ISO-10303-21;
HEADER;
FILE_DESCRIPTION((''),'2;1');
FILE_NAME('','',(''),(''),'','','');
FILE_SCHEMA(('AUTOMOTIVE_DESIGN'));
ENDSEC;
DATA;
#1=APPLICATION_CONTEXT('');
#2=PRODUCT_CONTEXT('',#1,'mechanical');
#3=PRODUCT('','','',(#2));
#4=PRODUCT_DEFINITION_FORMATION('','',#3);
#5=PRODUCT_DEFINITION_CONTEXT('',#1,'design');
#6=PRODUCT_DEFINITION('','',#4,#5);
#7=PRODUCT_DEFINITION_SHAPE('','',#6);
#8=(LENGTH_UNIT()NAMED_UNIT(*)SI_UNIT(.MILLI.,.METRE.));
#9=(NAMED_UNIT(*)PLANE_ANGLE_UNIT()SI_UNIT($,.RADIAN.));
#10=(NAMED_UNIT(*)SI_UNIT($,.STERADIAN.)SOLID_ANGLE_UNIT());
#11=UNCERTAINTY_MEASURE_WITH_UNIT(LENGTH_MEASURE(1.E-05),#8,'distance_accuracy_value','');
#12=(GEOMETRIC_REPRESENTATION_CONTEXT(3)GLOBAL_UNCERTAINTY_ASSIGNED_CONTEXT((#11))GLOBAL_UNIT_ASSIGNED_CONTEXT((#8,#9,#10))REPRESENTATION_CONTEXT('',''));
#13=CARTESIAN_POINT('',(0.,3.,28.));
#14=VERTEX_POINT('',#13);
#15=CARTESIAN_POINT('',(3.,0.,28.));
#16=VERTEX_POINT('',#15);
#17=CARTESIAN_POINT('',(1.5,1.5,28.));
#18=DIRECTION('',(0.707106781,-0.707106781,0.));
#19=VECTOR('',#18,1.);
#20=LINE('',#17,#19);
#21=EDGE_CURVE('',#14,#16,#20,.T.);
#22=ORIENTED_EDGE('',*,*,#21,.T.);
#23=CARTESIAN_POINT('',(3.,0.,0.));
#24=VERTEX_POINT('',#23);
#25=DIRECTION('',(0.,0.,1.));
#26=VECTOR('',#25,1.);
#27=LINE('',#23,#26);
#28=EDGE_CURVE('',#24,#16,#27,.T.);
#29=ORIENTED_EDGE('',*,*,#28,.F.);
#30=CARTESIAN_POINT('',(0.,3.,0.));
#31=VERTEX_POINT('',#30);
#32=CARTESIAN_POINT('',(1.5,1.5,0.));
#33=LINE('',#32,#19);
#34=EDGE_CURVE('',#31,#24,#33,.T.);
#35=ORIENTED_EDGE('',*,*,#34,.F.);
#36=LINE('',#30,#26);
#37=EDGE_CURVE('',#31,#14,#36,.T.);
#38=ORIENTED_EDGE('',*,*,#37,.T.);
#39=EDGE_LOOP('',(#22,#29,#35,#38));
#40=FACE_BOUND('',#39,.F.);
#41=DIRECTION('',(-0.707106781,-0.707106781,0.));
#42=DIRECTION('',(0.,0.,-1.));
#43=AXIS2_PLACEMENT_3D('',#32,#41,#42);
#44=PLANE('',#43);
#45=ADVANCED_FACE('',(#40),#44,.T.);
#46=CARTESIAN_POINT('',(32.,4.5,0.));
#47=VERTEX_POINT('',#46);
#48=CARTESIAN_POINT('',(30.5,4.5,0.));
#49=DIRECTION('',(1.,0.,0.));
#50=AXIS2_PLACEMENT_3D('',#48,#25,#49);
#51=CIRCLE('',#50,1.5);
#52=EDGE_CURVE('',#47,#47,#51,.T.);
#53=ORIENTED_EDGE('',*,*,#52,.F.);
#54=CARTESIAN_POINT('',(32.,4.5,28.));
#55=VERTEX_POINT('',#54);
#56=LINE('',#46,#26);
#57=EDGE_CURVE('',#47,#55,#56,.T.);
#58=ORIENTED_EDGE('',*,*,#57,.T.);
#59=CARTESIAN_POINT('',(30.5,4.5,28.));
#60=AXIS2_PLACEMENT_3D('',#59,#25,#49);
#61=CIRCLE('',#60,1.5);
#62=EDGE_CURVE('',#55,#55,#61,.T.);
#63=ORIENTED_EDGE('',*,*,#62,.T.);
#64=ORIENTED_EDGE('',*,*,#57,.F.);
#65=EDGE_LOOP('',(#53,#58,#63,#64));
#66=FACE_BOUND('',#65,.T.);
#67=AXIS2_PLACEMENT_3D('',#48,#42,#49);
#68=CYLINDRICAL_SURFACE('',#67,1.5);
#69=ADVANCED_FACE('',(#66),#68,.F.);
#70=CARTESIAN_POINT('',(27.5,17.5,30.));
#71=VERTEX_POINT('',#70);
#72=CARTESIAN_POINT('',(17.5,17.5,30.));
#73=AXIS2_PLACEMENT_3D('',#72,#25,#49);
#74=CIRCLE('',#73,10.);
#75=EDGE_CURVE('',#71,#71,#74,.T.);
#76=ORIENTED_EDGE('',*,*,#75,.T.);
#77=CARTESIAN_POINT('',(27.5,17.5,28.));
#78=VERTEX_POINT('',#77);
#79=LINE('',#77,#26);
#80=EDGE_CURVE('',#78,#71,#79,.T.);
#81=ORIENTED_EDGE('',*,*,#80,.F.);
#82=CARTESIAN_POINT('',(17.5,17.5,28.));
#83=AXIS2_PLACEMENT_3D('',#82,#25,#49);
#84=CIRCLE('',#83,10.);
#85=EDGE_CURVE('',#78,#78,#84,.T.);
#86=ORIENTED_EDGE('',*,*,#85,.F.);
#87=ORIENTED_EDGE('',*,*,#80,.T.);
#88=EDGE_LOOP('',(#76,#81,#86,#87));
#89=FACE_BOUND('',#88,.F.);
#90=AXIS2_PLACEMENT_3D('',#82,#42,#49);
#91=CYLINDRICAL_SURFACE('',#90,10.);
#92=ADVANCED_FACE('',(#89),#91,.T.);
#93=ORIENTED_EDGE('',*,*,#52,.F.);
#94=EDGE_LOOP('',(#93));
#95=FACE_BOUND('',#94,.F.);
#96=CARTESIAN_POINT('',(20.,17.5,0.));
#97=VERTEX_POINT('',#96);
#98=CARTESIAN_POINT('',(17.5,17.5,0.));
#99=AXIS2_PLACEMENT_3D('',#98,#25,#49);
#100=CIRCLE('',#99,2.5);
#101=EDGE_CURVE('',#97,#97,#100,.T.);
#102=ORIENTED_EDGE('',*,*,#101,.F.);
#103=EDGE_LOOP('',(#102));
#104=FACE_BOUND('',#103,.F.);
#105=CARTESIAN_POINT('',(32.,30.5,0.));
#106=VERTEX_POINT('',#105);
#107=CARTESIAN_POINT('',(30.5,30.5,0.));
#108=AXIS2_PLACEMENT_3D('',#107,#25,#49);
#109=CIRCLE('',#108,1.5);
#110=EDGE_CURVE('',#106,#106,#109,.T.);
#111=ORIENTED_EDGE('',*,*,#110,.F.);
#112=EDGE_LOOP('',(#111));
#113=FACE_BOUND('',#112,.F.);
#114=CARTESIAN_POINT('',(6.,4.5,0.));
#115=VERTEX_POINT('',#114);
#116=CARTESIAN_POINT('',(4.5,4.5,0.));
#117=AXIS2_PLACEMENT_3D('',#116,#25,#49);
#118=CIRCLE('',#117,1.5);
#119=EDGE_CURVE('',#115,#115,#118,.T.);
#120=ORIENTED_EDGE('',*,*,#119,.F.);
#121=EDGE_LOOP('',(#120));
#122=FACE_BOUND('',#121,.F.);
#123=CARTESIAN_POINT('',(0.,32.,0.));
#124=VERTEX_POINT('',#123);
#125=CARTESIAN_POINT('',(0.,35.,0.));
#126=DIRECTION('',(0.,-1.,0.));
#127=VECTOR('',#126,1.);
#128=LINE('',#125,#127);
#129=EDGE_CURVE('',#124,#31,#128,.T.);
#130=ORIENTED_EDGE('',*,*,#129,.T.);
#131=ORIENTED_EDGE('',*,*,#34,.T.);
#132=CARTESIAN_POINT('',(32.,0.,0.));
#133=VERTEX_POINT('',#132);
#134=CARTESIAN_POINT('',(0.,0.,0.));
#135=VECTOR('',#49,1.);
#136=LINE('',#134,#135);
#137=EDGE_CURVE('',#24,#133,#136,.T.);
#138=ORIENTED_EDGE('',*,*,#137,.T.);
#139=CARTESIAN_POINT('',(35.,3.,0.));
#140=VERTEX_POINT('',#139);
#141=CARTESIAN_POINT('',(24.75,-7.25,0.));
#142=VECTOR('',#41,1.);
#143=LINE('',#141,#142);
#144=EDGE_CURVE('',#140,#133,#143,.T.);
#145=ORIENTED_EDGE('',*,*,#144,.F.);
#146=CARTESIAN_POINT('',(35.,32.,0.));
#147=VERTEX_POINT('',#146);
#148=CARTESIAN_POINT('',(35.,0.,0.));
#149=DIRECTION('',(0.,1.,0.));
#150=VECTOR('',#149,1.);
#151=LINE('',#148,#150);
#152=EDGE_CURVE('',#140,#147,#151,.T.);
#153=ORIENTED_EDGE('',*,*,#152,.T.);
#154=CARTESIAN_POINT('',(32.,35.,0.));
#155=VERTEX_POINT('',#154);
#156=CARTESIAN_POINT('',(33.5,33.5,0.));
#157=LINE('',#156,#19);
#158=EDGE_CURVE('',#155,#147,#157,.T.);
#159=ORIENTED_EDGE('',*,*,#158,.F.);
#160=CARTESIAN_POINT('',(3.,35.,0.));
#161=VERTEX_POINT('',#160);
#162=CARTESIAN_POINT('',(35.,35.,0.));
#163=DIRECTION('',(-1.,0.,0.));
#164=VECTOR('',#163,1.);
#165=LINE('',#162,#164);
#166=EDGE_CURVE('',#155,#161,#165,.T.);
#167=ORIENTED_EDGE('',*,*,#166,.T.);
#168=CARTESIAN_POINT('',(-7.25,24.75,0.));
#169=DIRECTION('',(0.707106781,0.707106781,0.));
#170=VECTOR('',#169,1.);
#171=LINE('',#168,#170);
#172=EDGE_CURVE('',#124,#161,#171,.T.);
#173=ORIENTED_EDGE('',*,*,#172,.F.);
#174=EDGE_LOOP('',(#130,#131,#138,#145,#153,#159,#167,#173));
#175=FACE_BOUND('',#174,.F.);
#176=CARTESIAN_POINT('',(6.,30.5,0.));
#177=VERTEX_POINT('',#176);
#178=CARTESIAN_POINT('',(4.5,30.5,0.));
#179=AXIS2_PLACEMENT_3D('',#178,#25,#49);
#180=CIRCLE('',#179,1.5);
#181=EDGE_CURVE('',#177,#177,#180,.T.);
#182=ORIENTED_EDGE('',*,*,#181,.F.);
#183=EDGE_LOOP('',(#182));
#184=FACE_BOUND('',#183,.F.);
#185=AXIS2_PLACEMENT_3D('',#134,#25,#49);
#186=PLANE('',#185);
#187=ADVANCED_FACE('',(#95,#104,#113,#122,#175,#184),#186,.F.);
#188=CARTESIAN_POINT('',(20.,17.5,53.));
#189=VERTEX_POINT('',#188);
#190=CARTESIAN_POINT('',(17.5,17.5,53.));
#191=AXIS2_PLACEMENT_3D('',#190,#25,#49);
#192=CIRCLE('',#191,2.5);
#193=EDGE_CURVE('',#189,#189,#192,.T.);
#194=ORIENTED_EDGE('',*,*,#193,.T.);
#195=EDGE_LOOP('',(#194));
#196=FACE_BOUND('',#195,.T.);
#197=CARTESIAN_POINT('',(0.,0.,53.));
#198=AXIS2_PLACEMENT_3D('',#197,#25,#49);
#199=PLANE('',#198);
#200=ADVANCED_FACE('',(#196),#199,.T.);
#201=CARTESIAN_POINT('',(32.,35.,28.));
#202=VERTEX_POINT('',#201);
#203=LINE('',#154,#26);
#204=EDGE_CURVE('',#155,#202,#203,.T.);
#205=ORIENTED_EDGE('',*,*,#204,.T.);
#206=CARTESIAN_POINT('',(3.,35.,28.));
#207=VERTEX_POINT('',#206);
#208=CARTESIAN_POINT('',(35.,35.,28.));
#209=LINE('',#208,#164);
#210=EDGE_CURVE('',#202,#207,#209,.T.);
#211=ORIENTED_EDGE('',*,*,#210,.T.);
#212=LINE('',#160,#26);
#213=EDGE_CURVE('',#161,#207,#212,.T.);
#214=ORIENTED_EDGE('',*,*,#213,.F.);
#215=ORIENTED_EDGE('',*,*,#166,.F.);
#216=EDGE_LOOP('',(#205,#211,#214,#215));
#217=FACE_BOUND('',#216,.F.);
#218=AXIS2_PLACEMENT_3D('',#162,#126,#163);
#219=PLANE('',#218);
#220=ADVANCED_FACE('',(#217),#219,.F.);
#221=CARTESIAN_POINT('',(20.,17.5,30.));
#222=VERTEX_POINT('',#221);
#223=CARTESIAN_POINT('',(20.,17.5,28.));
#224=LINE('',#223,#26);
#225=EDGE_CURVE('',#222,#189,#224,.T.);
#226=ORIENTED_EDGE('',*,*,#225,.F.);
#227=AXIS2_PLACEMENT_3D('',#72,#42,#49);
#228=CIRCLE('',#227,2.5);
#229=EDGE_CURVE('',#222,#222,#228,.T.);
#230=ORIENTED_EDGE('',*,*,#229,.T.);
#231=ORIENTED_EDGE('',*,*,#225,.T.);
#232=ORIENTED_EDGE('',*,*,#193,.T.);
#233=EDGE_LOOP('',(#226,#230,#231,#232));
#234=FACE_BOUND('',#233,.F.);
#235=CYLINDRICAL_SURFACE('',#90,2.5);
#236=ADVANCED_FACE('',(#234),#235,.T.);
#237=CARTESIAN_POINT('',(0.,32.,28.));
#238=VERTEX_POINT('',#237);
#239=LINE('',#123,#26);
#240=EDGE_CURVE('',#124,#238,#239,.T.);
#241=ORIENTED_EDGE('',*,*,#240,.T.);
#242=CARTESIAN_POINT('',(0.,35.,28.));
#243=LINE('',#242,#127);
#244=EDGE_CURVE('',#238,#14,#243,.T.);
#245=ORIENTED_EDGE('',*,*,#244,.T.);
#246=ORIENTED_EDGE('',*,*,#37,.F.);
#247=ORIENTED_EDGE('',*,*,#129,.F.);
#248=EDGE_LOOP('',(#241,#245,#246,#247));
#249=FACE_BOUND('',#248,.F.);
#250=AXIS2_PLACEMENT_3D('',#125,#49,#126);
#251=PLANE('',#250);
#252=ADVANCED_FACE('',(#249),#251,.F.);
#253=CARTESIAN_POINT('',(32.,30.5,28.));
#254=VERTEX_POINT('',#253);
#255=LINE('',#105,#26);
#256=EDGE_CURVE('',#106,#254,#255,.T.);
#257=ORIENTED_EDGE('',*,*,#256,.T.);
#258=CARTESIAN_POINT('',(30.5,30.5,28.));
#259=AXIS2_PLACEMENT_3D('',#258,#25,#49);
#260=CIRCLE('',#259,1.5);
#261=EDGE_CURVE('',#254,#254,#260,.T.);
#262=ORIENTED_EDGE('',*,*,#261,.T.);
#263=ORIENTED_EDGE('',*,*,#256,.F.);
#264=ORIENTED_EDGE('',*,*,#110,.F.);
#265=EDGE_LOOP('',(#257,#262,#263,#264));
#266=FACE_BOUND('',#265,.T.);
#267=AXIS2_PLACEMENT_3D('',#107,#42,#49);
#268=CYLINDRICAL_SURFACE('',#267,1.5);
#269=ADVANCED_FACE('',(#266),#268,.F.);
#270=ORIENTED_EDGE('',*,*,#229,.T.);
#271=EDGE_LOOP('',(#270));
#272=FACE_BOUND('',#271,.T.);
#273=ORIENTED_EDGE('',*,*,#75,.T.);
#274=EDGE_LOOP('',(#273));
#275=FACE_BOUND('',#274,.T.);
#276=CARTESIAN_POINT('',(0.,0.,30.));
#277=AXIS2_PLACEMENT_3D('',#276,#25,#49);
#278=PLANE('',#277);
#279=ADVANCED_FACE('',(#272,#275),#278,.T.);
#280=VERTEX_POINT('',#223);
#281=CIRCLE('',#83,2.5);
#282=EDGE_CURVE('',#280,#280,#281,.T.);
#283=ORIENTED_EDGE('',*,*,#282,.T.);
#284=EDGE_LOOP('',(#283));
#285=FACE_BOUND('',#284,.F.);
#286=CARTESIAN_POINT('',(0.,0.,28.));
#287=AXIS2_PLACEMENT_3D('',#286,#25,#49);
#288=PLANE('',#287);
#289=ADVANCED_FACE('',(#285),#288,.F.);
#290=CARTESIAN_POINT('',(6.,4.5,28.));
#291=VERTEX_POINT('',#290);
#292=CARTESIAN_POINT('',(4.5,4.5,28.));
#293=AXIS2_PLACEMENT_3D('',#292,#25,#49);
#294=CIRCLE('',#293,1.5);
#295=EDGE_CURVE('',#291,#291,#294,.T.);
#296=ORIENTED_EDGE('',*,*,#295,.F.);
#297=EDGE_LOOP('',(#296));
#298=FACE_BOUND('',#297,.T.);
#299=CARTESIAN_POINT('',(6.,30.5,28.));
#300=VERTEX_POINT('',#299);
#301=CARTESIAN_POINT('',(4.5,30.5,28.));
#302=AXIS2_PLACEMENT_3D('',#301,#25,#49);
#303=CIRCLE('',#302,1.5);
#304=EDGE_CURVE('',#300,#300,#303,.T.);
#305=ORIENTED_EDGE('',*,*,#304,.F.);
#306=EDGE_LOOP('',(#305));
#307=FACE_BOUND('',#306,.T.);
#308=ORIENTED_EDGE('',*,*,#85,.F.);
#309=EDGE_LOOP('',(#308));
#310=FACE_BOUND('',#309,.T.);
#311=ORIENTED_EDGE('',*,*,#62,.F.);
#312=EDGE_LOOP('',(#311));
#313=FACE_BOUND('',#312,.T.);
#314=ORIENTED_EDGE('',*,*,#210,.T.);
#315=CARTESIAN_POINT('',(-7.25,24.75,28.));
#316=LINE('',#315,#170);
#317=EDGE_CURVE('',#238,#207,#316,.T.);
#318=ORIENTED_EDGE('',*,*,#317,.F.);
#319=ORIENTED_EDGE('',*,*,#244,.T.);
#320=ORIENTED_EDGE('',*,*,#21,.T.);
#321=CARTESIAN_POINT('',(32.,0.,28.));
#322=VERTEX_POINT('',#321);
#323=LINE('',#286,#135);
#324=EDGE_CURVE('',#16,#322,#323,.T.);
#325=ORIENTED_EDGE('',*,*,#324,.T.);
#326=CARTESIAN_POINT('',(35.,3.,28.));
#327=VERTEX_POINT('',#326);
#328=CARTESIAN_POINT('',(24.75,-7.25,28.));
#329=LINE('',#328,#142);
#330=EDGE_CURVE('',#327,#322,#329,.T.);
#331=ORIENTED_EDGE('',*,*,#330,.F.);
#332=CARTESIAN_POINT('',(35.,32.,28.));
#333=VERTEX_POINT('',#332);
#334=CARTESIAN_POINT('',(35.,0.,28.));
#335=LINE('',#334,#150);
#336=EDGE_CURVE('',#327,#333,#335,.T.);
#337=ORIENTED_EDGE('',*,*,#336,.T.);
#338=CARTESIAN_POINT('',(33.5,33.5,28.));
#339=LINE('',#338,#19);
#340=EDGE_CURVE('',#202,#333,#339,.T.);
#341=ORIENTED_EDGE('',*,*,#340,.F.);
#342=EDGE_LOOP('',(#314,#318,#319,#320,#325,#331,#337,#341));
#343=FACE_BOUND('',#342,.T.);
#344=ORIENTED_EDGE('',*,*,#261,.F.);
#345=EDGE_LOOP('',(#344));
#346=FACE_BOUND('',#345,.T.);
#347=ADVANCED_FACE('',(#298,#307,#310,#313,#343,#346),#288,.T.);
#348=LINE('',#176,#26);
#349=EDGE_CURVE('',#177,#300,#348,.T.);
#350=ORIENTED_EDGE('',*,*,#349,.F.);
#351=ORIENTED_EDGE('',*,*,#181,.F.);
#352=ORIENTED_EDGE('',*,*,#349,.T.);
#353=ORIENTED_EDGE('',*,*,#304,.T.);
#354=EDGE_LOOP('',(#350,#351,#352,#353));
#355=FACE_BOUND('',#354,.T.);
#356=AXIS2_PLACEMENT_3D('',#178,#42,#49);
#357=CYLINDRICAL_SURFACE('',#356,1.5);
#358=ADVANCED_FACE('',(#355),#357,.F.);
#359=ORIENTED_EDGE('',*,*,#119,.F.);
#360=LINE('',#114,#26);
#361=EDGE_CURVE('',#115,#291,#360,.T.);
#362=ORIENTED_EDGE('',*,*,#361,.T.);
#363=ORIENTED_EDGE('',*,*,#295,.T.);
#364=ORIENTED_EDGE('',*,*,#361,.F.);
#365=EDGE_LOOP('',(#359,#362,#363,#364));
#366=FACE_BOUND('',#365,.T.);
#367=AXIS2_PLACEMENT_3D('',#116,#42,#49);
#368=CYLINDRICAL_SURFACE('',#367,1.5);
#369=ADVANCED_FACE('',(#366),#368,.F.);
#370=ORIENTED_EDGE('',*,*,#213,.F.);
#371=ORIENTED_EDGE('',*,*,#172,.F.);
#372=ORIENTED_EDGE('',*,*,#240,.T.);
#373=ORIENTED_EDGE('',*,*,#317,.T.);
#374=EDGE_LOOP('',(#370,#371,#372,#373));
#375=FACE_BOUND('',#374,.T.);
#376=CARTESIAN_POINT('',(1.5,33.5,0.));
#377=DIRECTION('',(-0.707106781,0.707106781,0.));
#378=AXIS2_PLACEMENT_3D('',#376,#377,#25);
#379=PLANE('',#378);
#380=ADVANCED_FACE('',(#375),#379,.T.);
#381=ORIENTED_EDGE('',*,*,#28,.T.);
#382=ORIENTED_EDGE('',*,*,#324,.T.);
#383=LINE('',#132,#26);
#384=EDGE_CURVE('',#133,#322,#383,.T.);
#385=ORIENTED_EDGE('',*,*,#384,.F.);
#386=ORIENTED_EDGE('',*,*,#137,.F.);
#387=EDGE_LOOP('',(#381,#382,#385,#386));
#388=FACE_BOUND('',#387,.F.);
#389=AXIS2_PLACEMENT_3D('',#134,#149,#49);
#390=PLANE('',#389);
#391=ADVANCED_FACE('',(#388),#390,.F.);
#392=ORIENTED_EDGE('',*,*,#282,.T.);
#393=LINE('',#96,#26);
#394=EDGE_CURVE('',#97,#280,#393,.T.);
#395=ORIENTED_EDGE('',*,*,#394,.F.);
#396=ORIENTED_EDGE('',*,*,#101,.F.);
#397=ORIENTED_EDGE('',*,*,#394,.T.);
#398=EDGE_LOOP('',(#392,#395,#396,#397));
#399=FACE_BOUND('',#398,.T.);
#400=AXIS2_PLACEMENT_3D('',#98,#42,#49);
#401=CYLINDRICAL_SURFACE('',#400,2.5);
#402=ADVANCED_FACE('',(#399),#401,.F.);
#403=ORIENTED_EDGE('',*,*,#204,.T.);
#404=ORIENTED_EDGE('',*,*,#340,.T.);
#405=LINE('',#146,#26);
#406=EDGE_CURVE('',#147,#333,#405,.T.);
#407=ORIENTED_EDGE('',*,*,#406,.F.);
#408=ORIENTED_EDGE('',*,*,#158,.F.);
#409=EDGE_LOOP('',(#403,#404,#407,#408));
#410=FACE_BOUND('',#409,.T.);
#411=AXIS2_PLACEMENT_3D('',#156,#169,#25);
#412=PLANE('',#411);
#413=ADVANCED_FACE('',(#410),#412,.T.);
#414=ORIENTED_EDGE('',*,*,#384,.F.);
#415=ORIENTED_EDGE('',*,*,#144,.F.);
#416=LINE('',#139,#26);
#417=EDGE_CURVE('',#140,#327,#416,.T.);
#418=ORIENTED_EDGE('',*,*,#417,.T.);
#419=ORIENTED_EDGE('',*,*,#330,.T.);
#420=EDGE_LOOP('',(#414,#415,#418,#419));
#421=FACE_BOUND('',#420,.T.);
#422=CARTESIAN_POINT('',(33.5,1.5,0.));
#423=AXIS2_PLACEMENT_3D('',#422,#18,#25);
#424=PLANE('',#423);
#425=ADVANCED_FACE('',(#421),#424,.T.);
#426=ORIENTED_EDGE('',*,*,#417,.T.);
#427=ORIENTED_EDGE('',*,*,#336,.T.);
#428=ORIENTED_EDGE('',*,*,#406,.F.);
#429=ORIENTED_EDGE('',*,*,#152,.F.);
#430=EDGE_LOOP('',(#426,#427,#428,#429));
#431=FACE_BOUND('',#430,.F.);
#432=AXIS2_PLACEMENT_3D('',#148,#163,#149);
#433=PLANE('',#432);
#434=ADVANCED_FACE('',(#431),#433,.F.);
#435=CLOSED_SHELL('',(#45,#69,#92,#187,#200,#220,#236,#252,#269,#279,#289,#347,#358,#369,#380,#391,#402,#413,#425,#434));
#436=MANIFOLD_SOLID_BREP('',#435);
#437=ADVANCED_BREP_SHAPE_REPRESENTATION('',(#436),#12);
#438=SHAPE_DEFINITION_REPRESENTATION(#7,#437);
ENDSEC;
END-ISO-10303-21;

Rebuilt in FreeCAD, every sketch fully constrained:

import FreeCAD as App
import Part
import Sketcher
Q = App.Units.Quantity


def edges_at(feature, points):
    """Names of the edges that pass closest to the given points."""
    edges = feature.Shape.Edges
    near = lambda p: min(range(len(edges)), key=lambda i: edges[i].distToShape(Part.Vertex(*p))[0])
    return sorted({f"Edge{near(p) + 1}" for p in points})


def add_polygon(sketch, points):
    """Adds a closed chain of lines whose ends are joined by coincident constraints."""
    first, n = sketch.GeometryCount, len(points)
    for a, b in zip(points, points[1:] + points[:1]):
        sketch.addGeometry(Part.LineSegment(App.Vector(*a, 0), App.Vector(*b, 0)), False)
    for i in range(n):
        sketch.addConstraint(Sketcher.Constraint("Coincident", first + i, 2, first + (i + 1) % n, 1))

doc = App.newDocument("Part")
params = doc.addObject("Spreadsheet::Sheet", "Params")
for row, (alias, value) in enumerate([
    ("sketch1_diameter", "3 mm"),
    ("sketch1_diameter2", "5 mm"),
    ("sketch1_width", "35 mm"),
    ("pad1_length", "28 mm"),
    ("chamfer_size", "3 mm"),
    ("sketch2_diameter", "5 mm"),
    ("pad2_length", "25 mm"),
    ("sketch3_diameter", "20 mm"),
    ("pad3_length", "2 mm"),
], start=1):
    params.set(f"A{row}", alias)
    params.set(f"B{row}", "=" + value)
    params.setAlias(f"B{row}", alias)

body = doc.addObject("PartDesign::Body", "Body")
body.AllowCompound = True

# Sketch on XY plane
sketch1 = body.newObject("Sketcher::SketchObject", "Sketch")
sketch1.AttachmentSupport = (doc.getObject("XY_Plane"), [""])
sketch1.MapMode = "FlatFace"
add_polygon(sketch1, [(0, 35), (0, 0), (35, 0), (35, 35)])  # lines 0-3
sketch1.addGeometry(Part.Circle(App.Vector(4.5, 4.5, 0), App.Vector(0, 0, 1), 1.5), False)  # 4
sketch1.addGeometry(Part.Circle(App.Vector(30.5, 4.5, 0), App.Vector(0, 0, 1), 1.5), False)  # 5
sketch1.addGeometry(Part.Circle(App.Vector(4.5, 30.5, 0), App.Vector(0, 0, 1), 1.5), False)  # 6
sketch1.addGeometry(Part.Circle(App.Vector(17.5, 17.5, 0), App.Vector(0, 0, 1), 2.5), False)  # 7
sketch1.addGeometry(Part.Circle(App.Vector(30.5, 30.5, 0), App.Vector(0, 0, 1), 1.5), False)  # 8
sketch1.addConstraint([
    Sketcher.Constraint("Vertical", 0),
    Sketcher.Constraint("Horizontal", 1),
    Sketcher.Constraint("Vertical", 2),
    Sketcher.Constraint("Horizontal", 3),
    Sketcher.Constraint("Coincident", 0, 2, -1, 1),
    Sketcher.Constraint("Equal", 4, 5),
    Sketcher.Constraint("Equal", 5, 6),
    Sketcher.Constraint("Equal", 6, 8),
    Sketcher.Constraint("Horizontal", 4, 3, 5, 3),
    Sketcher.Constraint("Horizontal", 6, 3, 8, 3),
    Sketcher.Constraint("Vertical", 4, 3, 6, 3),
    Sketcher.Constraint("Vertical", 5, 3, 8, 3),
    Sketcher.Constraint("Equal", 3, 0),
    Sketcher.Constraint("Diameter", 4, Q("3 mm")),
    Sketcher.Constraint("Diameter", 7, Q("5 mm")),
    Sketcher.Constraint("DistanceX", 1, 1, 1, 2, Q("35 mm")),
    Sketcher.Constraint("DistanceX", 4, 3, 5, 3, Q("26 mm")),
    Sketcher.Constraint("DistanceY", 4, 3, 6, 3, Q("26 mm")),
    Sketcher.Constraint("DistanceX", 4, 3, 7, 3, Q("13 mm")),
    Sketcher.Constraint("DistanceY", 4, 3, 7, 3, Q("13 mm")),
    Sketcher.Constraint("DistanceX", -1, 1, 4, 3, Q("4.5 mm")),
    Sketcher.Constraint("DistanceY", -1, 1, 4, 3, Q("4.5 mm")),
])
sketch1.setExpression("Constraints[17]", "Params.sketch1_diameter")
sketch1.setExpression("Constraints[18]", "Params.sketch1_diameter2")
sketch1.setExpression("Constraints[19]", "Params.sketch1_width")
pad1 = body.newObject("PartDesign::Pad", "Pad")
pad1.Profile = sketch1
pad1.setExpression("Length", "Params.pad1_length")
doc.recompute()

chamfer = body.newObject("PartDesign::Chamfer", "Chamfer")
chamfer.Base = (pad1, edges_at(pad1, [
    (35, 35, 14),
    (35, 0, 14),
    (0, 0, 14),
    (0, 35, 14),
]))
chamfer.setExpression("Size", "Params.chamfer_size")

# Sketch on XY plane
sketch2 = body.newObject("Sketcher::SketchObject", "Sketch001")
sketch2.AttachmentSupport = (doc.getObject("XY_Plane"), [""])
sketch2.MapMode = "FlatFace"
sketch2.AttachmentOffset = App.Placement(App.Vector(0, 0, 28), App.Rotation())
sketch2.addGeometry(Part.Circle(App.Vector(17.5, 17.5, 0), App.Vector(0, 0, 1), 2.5), False)
sketch2.addConstraint([
    Sketcher.Constraint("Diameter", 0, Q("5 mm")),
    Sketcher.Constraint("DistanceX", -1, 1, 0, 3, Q("17.5 mm")),
    Sketcher.Constraint("DistanceY", -1, 1, 0, 3, Q("17.5 mm")),
])
sketch2.setExpression("Constraints[0]", "Params.sketch2_diameter")
pad2 = body.newObject("PartDesign::Pad", "Pad001")
pad2.Profile = sketch2
pad2.setExpression("Length", "Params.pad2_length")

# Sketch on XY plane
sketch3 = body.newObject("Sketcher::SketchObject", "Sketch002")
sketch3.AttachmentSupport = (doc.getObject("XY_Plane"), [""])
sketch3.MapMode = "FlatFace"
sketch3.AttachmentOffset = App.Placement(App.Vector(0, 0, 28), App.Rotation())
sketch3.addGeometry(Part.Circle(App.Vector(17.5, 17.5, 0), App.Vector(0, 0, 1), 10), False)
sketch3.addConstraint([
    Sketcher.Constraint("Diameter", 0, Q("20 mm")),
    Sketcher.Constraint("DistanceX", -1, 1, 0, 3, Q("17.5 mm")),
    Sketcher.Constraint("DistanceY", -1, 1, 0, 3, Q("17.5 mm")),
])
sketch3.setExpression("Constraints[0]", "Params.sketch3_diameter")
pad3 = body.newObject("PartDesign::Pad", "Pad002")
pad3.Profile = sketch3
pad3.setExpression("Length", "Params.pad3_length")

doc.recompute()
